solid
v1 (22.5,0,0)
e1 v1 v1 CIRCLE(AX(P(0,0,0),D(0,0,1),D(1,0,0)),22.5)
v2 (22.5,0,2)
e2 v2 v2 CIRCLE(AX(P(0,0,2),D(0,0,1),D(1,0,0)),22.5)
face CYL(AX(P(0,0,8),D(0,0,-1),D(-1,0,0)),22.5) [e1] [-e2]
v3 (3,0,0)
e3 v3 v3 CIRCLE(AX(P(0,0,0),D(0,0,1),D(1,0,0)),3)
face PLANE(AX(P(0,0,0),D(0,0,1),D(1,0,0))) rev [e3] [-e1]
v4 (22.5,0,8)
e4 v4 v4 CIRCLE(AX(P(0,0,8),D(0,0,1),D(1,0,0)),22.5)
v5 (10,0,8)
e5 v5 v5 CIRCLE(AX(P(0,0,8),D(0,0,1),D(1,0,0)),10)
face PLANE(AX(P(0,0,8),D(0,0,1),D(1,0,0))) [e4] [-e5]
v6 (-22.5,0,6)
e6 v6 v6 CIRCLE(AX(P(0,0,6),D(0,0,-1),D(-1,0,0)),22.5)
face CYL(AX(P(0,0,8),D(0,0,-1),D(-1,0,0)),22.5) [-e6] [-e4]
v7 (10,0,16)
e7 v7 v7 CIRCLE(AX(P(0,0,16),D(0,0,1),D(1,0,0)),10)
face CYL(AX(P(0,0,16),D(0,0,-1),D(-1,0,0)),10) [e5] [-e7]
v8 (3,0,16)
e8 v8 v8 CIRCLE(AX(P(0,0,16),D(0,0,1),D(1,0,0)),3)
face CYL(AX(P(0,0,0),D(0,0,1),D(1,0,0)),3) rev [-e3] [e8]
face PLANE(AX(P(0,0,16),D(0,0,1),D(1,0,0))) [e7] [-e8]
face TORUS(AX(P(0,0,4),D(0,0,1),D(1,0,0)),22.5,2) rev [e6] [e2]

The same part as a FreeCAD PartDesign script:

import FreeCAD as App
import Part
import Sketcher
from FreeCAD import Vector
Q = App.Units.Quantity

doc = App.newDocument("Part")
body = doc.addObject("PartDesign::Body", "Body")

sketch1 = body.newObject("Sketcher::SketchObject", "Sketch")
sketch1.AttachmentSupport = (doc.getObject("XY_Plane"), [""])
sketch1.MapMode = "FlatFace"
sketch1.addGeometry(Part.Circle(Vector(0, 0, 0), Vector(0, 0, 1), 22), False)
sketch1.addConstraint([
    Sketcher.Constraint("Coincident", 0, 3, -1, 1),
    Sketcher.Constraint("Diameter", 0, Q("45 mm")),
])
pad1 = body.newObject("PartDesign::Pad", "Pad")
pad1.Profile = sketch1
pad1.Length = 8

sketch2 = body.newObject("Sketcher::SketchObject", "Sketch001")
sketch2.AttachmentSupport = (doc.getObject("XZ_Plane"), [""])
sketch2.MapMode = "FlatFace"
sketch2.addGeometry(Part.Circle(Vector(-22.5, 4, 0), Vector(0, 0, 1), 2), False)
sketch2.addConstraint([
    Sketcher.Constraint("Diameter", 0, Q("4 mm")),
    Sketcher.Constraint("DistanceY", -1, 1, 0, 3, Q("4 mm")),
    Sketcher.Constraint("DistanceX", 0, 3, -1, 1, Q("22.5 mm")),
])
groove = body.newObject("PartDesign::Groove", "Groove")
groove.Profile = sketch2
groove.ReferenceAxis = (sketch2, ["V_Axis"])
groove.Angle = 360

sketch3 = body.newObject("Sketcher::SketchObject", "Sketch002")
sketch3.AttachmentSupport = (doc.getObject("XY_Plane"), [""])
sketch3.MapMode = "FlatFace"
sketch3.AttachmentOffset = App.Placement(Vector(0, 0, 8), App.Rotation())
sketch3.addGeometry(Part.Circle(Vector(0, 0, 0), Vector(0, 0, 1), 10), False)
sketch3.addConstraint([
    Sketcher.Constraint("Coincident", 0, 3, -1, 1),
    Sketcher.Constraint("Diameter", 0, Q("20 mm")),
])
pad2 = body.newObject("PartDesign::Pad", "Pad001")
pad2.Profile = sketch3
pad2.Length = 8

sketch4 = body.newObject("Sketcher::SketchObject", "Sketch003")
sketch4.AttachmentSupport = (doc.getObject("XY_Plane"), [""])
sketch4.MapMode = "FlatFace"
sketch4.AttachmentOffset = App.Placement(Vector(0, 0, 16), App.Rotation())
sketch4.addGeometry(Part.Circle(Vector(0, 0, 0), Vector(0, 0, 1), 3), False)
sketch4.addConstraint([
    Sketcher.Constraint("Coincident", 0, 3, -1, 1),
    Sketcher.Constraint("Diameter", 0, Q("6 mm")),
])
pocket1 = body.newObject("PartDesign::Pocket", "Pocket")
pocket1.Profile = sketch4
pocket1.Type = "ThroughAll"

doc.recompute()
